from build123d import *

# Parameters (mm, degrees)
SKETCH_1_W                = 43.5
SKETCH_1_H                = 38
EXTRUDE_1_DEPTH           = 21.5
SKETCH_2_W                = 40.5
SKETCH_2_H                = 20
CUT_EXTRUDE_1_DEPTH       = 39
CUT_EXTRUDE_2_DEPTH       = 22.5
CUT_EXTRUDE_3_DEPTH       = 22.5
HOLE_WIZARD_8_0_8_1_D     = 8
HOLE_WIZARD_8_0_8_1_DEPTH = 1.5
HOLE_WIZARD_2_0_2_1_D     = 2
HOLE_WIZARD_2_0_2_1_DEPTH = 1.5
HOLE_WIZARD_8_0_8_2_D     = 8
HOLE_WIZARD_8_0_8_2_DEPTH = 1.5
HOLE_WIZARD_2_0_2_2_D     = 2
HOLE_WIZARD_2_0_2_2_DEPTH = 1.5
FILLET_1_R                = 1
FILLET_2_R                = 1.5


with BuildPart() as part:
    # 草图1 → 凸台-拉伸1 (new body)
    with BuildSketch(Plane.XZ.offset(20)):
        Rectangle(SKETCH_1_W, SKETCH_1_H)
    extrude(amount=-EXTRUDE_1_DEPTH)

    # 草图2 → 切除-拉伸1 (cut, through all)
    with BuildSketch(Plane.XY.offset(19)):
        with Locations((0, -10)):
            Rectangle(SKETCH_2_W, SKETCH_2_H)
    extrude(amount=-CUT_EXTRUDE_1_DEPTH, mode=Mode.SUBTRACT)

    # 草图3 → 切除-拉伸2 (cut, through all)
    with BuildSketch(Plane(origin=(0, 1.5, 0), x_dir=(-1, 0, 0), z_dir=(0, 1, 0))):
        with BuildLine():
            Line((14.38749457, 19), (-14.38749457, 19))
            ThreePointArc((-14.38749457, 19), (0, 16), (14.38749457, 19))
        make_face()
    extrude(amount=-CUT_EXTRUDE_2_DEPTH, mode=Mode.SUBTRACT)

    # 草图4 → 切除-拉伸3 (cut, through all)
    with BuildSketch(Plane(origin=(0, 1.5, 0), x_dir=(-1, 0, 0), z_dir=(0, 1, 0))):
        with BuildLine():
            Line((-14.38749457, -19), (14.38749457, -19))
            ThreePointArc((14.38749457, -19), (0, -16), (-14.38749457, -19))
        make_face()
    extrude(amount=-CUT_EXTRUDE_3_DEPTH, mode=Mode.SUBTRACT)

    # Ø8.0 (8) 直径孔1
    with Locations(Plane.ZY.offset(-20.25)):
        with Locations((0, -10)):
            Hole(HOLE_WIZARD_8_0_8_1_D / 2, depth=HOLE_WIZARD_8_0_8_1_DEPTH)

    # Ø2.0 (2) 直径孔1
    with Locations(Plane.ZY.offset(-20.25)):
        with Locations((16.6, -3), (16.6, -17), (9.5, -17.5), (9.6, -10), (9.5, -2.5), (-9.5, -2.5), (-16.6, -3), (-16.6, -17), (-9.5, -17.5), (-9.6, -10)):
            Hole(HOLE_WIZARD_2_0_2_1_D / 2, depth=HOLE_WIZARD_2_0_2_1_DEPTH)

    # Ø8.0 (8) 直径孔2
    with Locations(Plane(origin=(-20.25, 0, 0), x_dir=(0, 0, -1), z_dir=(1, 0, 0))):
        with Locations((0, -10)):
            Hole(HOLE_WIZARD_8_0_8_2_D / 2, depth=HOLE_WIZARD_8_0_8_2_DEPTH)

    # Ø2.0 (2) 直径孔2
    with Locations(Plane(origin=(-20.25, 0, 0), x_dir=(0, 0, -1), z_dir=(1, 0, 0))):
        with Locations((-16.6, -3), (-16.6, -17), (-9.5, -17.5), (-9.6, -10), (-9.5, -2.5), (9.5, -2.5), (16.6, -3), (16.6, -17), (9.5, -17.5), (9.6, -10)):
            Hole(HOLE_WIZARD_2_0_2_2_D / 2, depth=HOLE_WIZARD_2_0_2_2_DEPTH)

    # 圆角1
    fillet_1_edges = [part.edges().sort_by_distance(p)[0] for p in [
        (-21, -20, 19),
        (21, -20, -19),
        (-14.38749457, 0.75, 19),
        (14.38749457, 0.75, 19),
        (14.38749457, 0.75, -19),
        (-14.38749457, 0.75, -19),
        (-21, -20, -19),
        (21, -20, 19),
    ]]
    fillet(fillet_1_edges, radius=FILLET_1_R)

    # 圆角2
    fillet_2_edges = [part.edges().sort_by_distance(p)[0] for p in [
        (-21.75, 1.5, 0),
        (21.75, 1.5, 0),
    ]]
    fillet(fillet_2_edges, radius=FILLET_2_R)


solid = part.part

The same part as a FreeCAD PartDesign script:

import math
import FreeCAD as App
import Part
import Sketcher
from FreeCAD import Vector
Q = App.Units.Quantity


def edges_at(feature, points):
    """Names of the edges that pass closest to the given points."""
    edges = feature.Shape.Edges
    near = lambda p: min(range(len(edges)), key=lambda i: edges[i].distToShape(Part.Vertex(*p))[0])
    return sorted({f"Edge{near(p) + 1}" for p in points})


def add_polygon(sketch, points):
    """Adds a closed chain of lines whose ends are joined by coincident constraints."""
    first, n = sketch.GeometryCount, len(points)
    for a, b in zip(points, points[1:] + points[:1]):
        sketch.addGeometry(Part.LineSegment(App.Vector(*a, 0), App.Vector(*b, 0)), False)
    for i in range(n):
        sketch.addConstraint(Sketcher.Constraint("Coincident", first + i, 2, first + (i + 1) % n, 1))

doc = App.newDocument("Part")
params = doc.addObject("Spreadsheet::Sheet", "Params")
for row, (alias, value) in enumerate([
    ("sketch1_height", "38 mm"),
    ("sketch1_width", "43.5 mm"),
    ("pad1_length", "21.5 mm"),
    ("sketch2_height", "20 mm"),
    ("sketch2_width", "40.5 mm"),
    ("sketch3_radius", "36 mm"),
    ("sketch4_radius", "36 mm"),
    ("sketch5_diameter", "8 mm"),
    ("hole_diameter", "8 mm"),
    ("hole_depth", "1.5 mm"),
    ("sketch6_diameter", "2 mm"),
    ("hole2_diameter", "2 mm"),
    ("hole2_depth", "1.5 mm"),
    ("sketch7_diameter", "8 mm"),
    ("hole3_diameter", "8 mm"),
    ("hole3_depth", "1.5 mm"),
    ("sketch8_diameter", "2 mm"),
    ("hole4_diameter", "2 mm"),
    ("hole4_depth", "1.5 mm"),
    ("fillet_radius", "1 mm"),
    ("fillet2_radius", "1.5 mm"),
], start=1):
    params.set(f"A{row}", alias)
    params.set(f"B{row}", "=" + value)
    params.setAlias(f"B{row}", alias)

body = doc.addObject("PartDesign::Body", "Body")

sketch1 = body.newObject("Sketcher::SketchObject", "Sketch")
sketch1.AttachmentSupport = (doc.getObject("XZ_Plane"), [""])
sketch1.MapMode = "FlatFace"
sketch1.AttachmentOffset = App.Placement(Vector(0, 0, 20), App.Rotation())
add_polygon(sketch1, [(-21.75, 19), (-21.75, -19), (21.75, -19), (21.75, 19)])
sketch1.addConstraint(Sketcher.Constraint("Vertical", 0))
sketch1.addConstraint(Sketcher.Constraint("Horizontal", 1))
sketch1.addConstraint(Sketcher.Constraint("Vertical", 2))
sketch1.addConstraint(Sketcher.Constraint("Horizontal", 3))
sketch1.addConstraint(Sketcher.Constraint("Symmetric", 0, 2, 2, 2, -1, 1))
sketch1.addConstraint(Sketcher.Constraint("DistanceY", 0, 2, 0, 1, Q("38 mm")))
sketch1.addConstraint(Sketcher.Constraint("DistanceX", 1, 1, 1, 2, Q("43.5 mm")))
sketch1.setExpression("Constraints[9]", "Params.sketch1_height")
sketch1.setExpression("Constraints[10]", "Params.sketch1_width")
pad1 = body.newObject("PartDesign::Pad", "Pad")
pad1.Profile = sketch1
pad1.setExpression("Length", "Params.pad1_length")
pad1.Reversed = True

sketch2 = body.newObject("Sketcher::SketchObject", "Sketch001")
sketch2.AttachmentSupport = (doc.getObject("XY_Plane"), [""])
sketch2.MapMode = "FlatFace"
sketch2.AttachmentOffset = App.Placement(Vector(0, 0, 19), App.Rotation())
add_polygon(sketch2, [(-20.25, 0), (-20.25, -20), (20.25, -20), (20.25, 0)])
sketch2.addConstraint(Sketcher.Constraint("Vertical", 0))
sketch2.addConstraint(Sketcher.Constraint("Horizontal", 1))
sketch2.addConstraint(Sketcher.Constraint("Vertical", 2))
sketch2.addConstraint(Sketcher.Constraint("Horizontal", 3))
sketch2.addConstraint(Sketcher.Constraint("Symmetric", 2, 2, 3, 2, -1, 1))
sketch2.addConstraint(Sketcher.Constraint("DistanceY", 0, 2, 0, 1, Q("20 mm")))
sketch2.addConstraint(Sketcher.Constraint("DistanceX", 1, 1, 1, 2, Q("40.5 mm")))
sketch2.setExpression("Constraints[9]", "Params.sketch2_height")
sketch2.setExpression("Constraints[10]", "Params.sketch2_width")
pocket1 = body.newObject("PartDesign::Pocket", "Pocket")
pocket1.Profile = sketch2
pocket1.Type = "ThroughAll"

sketch3 = body.newObject("Sketcher::SketchObject", "Sketch002")
sketch3.AttachmentSupport = (doc.getObject("XZ_Plane"), [""])
sketch3.MapMode = "FlatFace"
sketch3.AttachmentOffset = App.Placement(Vector(0, 0, -1.5), App.Rotation())
sketch3.addGeometry(Part.LineSegment(Vector(-14.387495, 19, 0), Vector(14.387495, 19, 0)), False)
sketch3.addGeometry(Part.ArcOfCircle(Part.Circle(Vector(0, 52, 0), Vector(0, 0, 1), 36), math.radians(-113.556464), math.radians(-66.443536)), False)
sketch3.addConstraint(Sketcher.Constraint("Coincident", 0, 1, 1, 1))
sketch3.addConstraint(Sketcher.Constraint("Coincident", 1, 2, 0, 2))
sketch3.addConstraint(Sketcher.Constraint("Horizontal", 0))
sketch3.addConstraint(Sketcher.Constraint("PointOnObject", 1, 3, -2))
sketch3.addConstraint(Sketcher.Constraint("Radius", 1, Q("36 mm")))
sketch3.addConstraint(Sketcher.Constraint("DistanceY", -1, 1, 1, 3, Q("52 mm")))
sketch3.addConstraint(Sketcher.Constraint("DistanceY", -1, 1, 0, 1, Q("19 mm")))
sketch3.setExpression("Constraints[4]", "Params.sketch3_radius")
pocket2 = body.newObject("PartDesign::Pocket", "Pocket001")
pocket2.Profile = sketch3
pocket2.Type = "ThroughAll"
pocket2.Reversed = True

sketch4 = body.newObject("Sketcher::SketchObject", "Sketch003")
sketch4.AttachmentSupport = (doc.getObject("XZ_Plane"), [""])
sketch4.MapMode = "FlatFace"
sketch4.AttachmentOffset = App.Placement(Vector(0, 0, -1.5), App.Rotation())
sketch4.addGeometry(Part.LineSegment(Vector(14.387495, -19, 0), Vector(-14.387495, -19, 0)), False)
sketch4.addGeometry(Part.ArcOfCircle(Part.Circle(Vector(0, -52, 0), Vector(0, 0, 1), 36), math.radians(66.443536), math.radians(113.556464)), False)
sketch4.addConstraint(Sketcher.Constraint("Coincident", 0, 1, 1, 1))
sketch4.addConstraint(Sketcher.Constraint("Coincident", 1, 2, 0, 2))
sketch4.addConstraint(Sketcher.Constraint("Horizontal", 0))
sketch4.addConstraint(Sketcher.Constraint("PointOnObject", 1, 3, -2))
sketch4.addConstraint(Sketcher.Constraint("Radius", 1, Q("36 mm")))
sketch4.addConstraint(Sketcher.Constraint("DistanceY", 1, 3, -1, 1, Q("52 mm")))
sketch4.addConstraint(Sketcher.Constraint("DistanceY", 0, 1, -1, 1, Q("19 mm")))
sketch4.setExpression("Constraints[4]", "Params.sketch4_radius")
pocket3 = body.newObject("PartDesign::Pocket", "Pocket002")
pocket3.Profile = sketch4
pocket3.Type = "ThroughAll"
pocket3.Reversed = True

sketch5 = body.newObject("Sketcher::SketchObject", "Sketch004")
sketch5.AttachmentSupport = (doc.getObject("YZ_Plane"), [""])
sketch5.MapMode = "FlatFace"
sketch5.AttachmentOffset = App.Placement(Vector(0, 0, 20.25), App.Rotation())
sketch5.addGeometry(Part.Circle(Vector(-10, 0, 0), Vector(0, 0, 1), 4), False)
sketch5.addConstraint(Sketcher.Constraint("PointOnObject", 0, 3, -1))
sketch5.addConstraint(Sketcher.Constraint("Diameter", 0, Q("8 mm")))
sketch5.addConstraint(Sketcher.Constraint("DistanceX", 0, 3, -1, 1, Q("10 mm")))
sketch5.setExpression("Constraints[1]", "Params.sketch5_diameter")
doc.recompute()
hole = body.newObject("PartDesign::Hole", "Hole")
hole.Profile = sketch5
hole.ThreadType = "None"
hole.setExpression("Diameter", "Params.hole_diameter")
hole.DepthType = "Dimension"
hole.setExpression("Depth", "Params.hole_depth")
hole.DrillPoint = "Flat"
hole.Reversed = True

sketch6 = body.newObject("Sketcher::SketchObject", "Sketch005")
sketch6.AttachmentSupport = (doc.getObject("YZ_Plane"), [""])
sketch6.MapMode = "FlatFace"
sketch6.AttachmentOffset = App.Placement(Vector(0, 0, 20.25), App.Rotation())
sketch6.addGeometry(Part.Circle(Vector(-3, 16.6, 0), Vector(0, 0, 1), 1), False)
sketch6.addGeometry(Part.Circle(Vector(-17, 16.6, 0), Vector(0, 0, 1), 1), False)
sketch6.addGeometry(Part.Circle(Vector(-17.5, 9.5, 0), Vector(0, 0, 1), 1), False)
sketch6.addGeometry(Part.Circle(Vector(-10, 9.6, 0), Vector(0, 0, 1), 1), False)
sketch6.addGeometry(Part.Circle(Vector(-2.5, 9.5, 0), Vector(0, 0, 1), 1), False)
sketch6.addGeometry(Part.Circle(Vector(-2.5, -9.5, 0), Vector(0, 0, 1), 1), False)
sketch6.addGeometry(Part.Circle(Vector(-3, -16.6, 0), Vector(0, 0, 1), 1), False)
sketch6.addGeometry(Part.Circle(Vector(-17, -16.6, 0), Vector(0, 0, 1), 1), False)
sketch6.addGeometry(Part.Circle(Vector(-17.5, -9.5, 0), Vector(0, 0, 1), 1), False)
sketch6.addGeometry(Part.Circle(Vector(-10, -9.6, 0), Vector(0, 0, 1), 1), False)
sketch6.addConstraint(Sketcher.Constraint("Equal", 0, 1))
sketch6.addConstraint(Sketcher.Constraint("Equal", 1, 2))
sketch6.addConstraint(Sketcher.Constraint("Equal", 2, 3))
sketch6.addConstraint(Sketcher.Constraint("Equal", 3, 4))
sketch6.addConstraint(Sketcher.Constraint("Equal", 4, 5))
sketch6.addConstraint(Sketcher.Constraint("Equal", 5, 6))
sketch6.addConstraint(Sketcher.Constraint("Equal", 6, 7))
sketch6.addConstraint(Sketcher.Constraint("Equal", 7, 8))
sketch6.addConstraint(Sketcher.Constraint("Equal", 8, 9))
sketch6.addConstraint(Sketcher.Constraint("Symmetric", 4, 3, 5, 3, -1))
sketch6.addConstraint(Sketcher.Constraint("Symmetric", 0, 3, 6, 3, -1))
sketch6.addConstraint(Sketcher.Constraint("Symmetric", 1, 3, 7, 3, -1))
sketch6.addConstraint(Sketcher.Constraint("Symmetric", 2, 3, 8, 3, -1))
sketch6.addConstraint(Sketcher.Constraint("Symmetric", 3, 3, 9, 3, -1))
sketch6.addConstraint(Sketcher.Constraint("Horizontal", 0, 3, 1, 3))
sketch6.addConstraint(Sketcher.Constraint("Horizontal", 2, 3, 4, 3))
sketch6.addConstraint(Sketcher.Constraint("Diameter", 0, Q("2 mm")))
sketch6.addConstraint(Sketcher.Constraint("DistanceX", 0, 3, -1, 1, Q("3 mm")))
sketch6.addConstraint(Sketcher.Constraint("DistanceX", 1, 3, -1, 1, Q("17 mm")))
sketch6.addConstraint(Sketcher.Constraint("DistanceX", 3, 3, -1, 1, Q("10 mm")))
sketch6.addConstraint(Sketcher.Constraint("DistanceY", 3, 3, 0, 3, Q("7 mm")))
sketch6.addConstraint(Sketcher.Constraint("DistanceX", 2, 3, 4, 3, Q("15 mm")))
sketch6.addConstraint(Sketcher.Constraint("DistanceY", 5, 3, 4, 3, Q("19 mm")))
sketch6.addConstraint(Sketcher.Constraint("DistanceY", -1, 1, 0, 3, Q("16.6 mm")))
sketch6.addConstraint(Sketcher.Constraint("DistanceX", 2, 3, -1, 1, Q("17.5 mm")))
sketch6.setExpression("Constraints[16]", "Params.sketch6_diameter")
doc.recompute()
hole2 = body.newObject("PartDesign::Hole", "Hole001")
hole2.Profile = sketch6
hole2.ThreadType = "None"
hole2.setExpression("Diameter", "Params.hole2_diameter")
hole2.DepthType = "Dimension"
hole2.setExpression("Depth", "Params.hole2_depth")
hole2.DrillPoint = "Flat"
hole2.Reversed = True

sketch7 = body.newObject("Sketcher::SketchObject", "Sketch006")
sketch7.AttachmentSupport = (doc.getObject("YZ_Plane"), [""])
sketch7.MapMode = "FlatFace"
sketch7.AttachmentOffset = App.Placement(Vector(0, 0, -20.25), App.Rotation())
sketch7.addGeometry(Part.Circle(Vector(-10, 0, 0), Vector(0, 0, 1), 4), False)
sketch7.addConstraint(Sketcher.Constraint("PointOnObject", 0, 3, -1))
sketch7.addConstraint(Sketcher.Constraint("Diameter", 0, Q("8 mm")))
sketch7.addConstraint(Sketcher.Constraint("DistanceX", 0, 3, -1, 1, Q("10 mm")))
sketch7.setExpression("Constraints[1]", "Params.sketch7_diameter")
doc.recompute()
hole3 = body.newObject("PartDesign::Hole", "Hole002")
hole3.Profile = sketch7
hole3.ThreadType = "None"
hole3.setExpression("Diameter", "Params.hole3_diameter")
hole3.DepthType = "Dimension"
hole3.setExpression("Depth", "Params.hole3_depth")
hole3.DrillPoint = "Flat"

sketch8 = body.newObject("Sketcher::SketchObject", "Sketch007")
sketch8.AttachmentSupport = (doc.getObject("YZ_Plane"), [""])
sketch8.MapMode = "FlatFace"
sketch8.AttachmentOffset = App.Placement(Vector(0, 0, -20.25), App.Rotation())
sketch8.addGeometry(Part.Circle(Vector(-3, 16.6, 0), Vector(0, 0, 1), 1), False)
sketch8.addGeometry(Part.Circle(Vector(-17, 16.6, 0), Vector(0, 0, 1), 1), False)
sketch8.addGeometry(Part.Circle(Vector(-17.5, 9.5, 0), Vector(0, 0, 1), 1), False)
sketch8.addGeometry(Part.Circle(Vector(-10, 9.6, 0), Vector(0, 0, 1), 1), False)
sketch8.addGeometry(Part.Circle(Vector(-2.5, 9.5, 0), Vector(0, 0, 1), 1), False)
sketch8.addGeometry(Part.Circle(Vector(-2.5, -9.5, 0), Vector(0, 0, 1), 1), False)
sketch8.addGeometry(Part.Circle(Vector(-3, -16.6, 0), Vector(0, 0, 1), 1), False)
sketch8.addGeometry(Part.Circle(Vector(-17, -16.6, 0), Vector(0, 0, 1), 1), False)
sketch8.addGeometry(Part.Circle(Vector(-17.5, -9.5, 0), Vector(0, 0, 1), 1), False)
sketch8.addGeometry(Part.Circle(Vector(-10, -9.6, 0), Vector(0, 0, 1), 1), False)
sketch8.addConstraint(Sketcher.Constraint("Equal", 0, 1))
sketch8.addConstraint(Sketcher.Constraint("Equal", 1, 2))
sketch8.addConstraint(Sketcher.Constraint("Equal", 2, 3))
sketch8.addConstraint(Sketcher.Constraint("Equal", 3, 4))
sketch8.addConstraint(Sketcher.Constraint("Equal", 4, 5))
sketch8.addConstraint(Sketcher.Constraint("Equal", 5, 6))
sketch8.addConstraint(Sketcher.Constraint("Equal", 6, 7))
sketch8.addConstraint(Sketcher.Constraint("Equal", 7, 8))
sketch8.addConstraint(Sketcher.Constraint("Equal", 8, 9))
sketch8.addConstraint(Sketcher.Constraint("Symmetric", 4, 3, 5, 3, -1))
sketch8.addConstraint(Sketcher.Constraint("Symmetric", 0, 3, 6, 3, -1))
sketch8.addConstraint(Sketcher.Constraint("Symmetric", 1, 3, 7, 3, -1))
sketch8.addConstraint(Sketcher.Constraint("Symmetric", 2, 3, 8, 3, -1))
sketch8.addConstraint(Sketcher.Constraint("Symmetric", 3, 3, 9, 3, -1))
sketch8.addConstraint(Sketcher.Constraint("Horizontal", 0, 3, 1, 3))
sketch8.addConstraint(Sketcher.Constraint("Horizontal", 2, 3, 4, 3))
sketch8.addConstraint(Sketcher.Constraint("Diameter", 0, Q("2 mm")))
sketch8.addConstraint(Sketcher.Constraint("DistanceX", 0, 3, -1, 1, Q("3 mm")))
sketch8.addConstraint(Sketcher.Constraint("DistanceX", 1, 3, -1, 1, Q("17 mm")))
sketch8.addConstraint(Sketcher.Constraint("DistanceX", 3, 3, -1, 1, Q("10 mm")))
sketch8.addConstraint(Sketcher.Constraint("DistanceY", 3, 3, 0, 3, Q("7 mm")))
sketch8.addConstraint(Sketcher.Constraint("DistanceX", 2, 3, 4, 3, Q("15 mm")))
sketch8.addConstraint(Sketcher.Constraint("DistanceY", 5, 3, 4, 3, Q("19 mm")))
sketch8.addConstraint(Sketcher.Constraint("DistanceY", -1, 1, 0, 3, Q("16.6 mm")))
sketch8.addConstraint(Sketcher.Constraint("DistanceX", 2, 3, -1, 1, Q("17.5 mm")))
sketch8.setExpression("Constraints[16]", "Params.sketch8_diameter")
doc.recompute()
hole4 = body.newObject("PartDesign::Hole", "Hole003")
hole4.Profile = sketch8
hole4.ThreadType = "None"
hole4.setExpression("Diameter", "Params.hole4_diameter")
hole4.DepthType = "Dimension"
hole4.setExpression("Depth", "Params.hole4_depth")
hole4.DrillPoint = "Flat"
doc.recompute()

fillet = body.newObject("PartDesign::Fillet", "Fillet")
fillet.Base = (hole4, edges_at(hole4, [
    (-21, -20, 19),
    (21, -20, -19),
    (-14.387, 0.75, 19),
    (14.387, 0.75, 19),
    (14.387, 0.75, -19),
    (-14.387, 0.75, -19),
    (-21, -20, -19),
    (21, -20, 19),
]))
fillet.setExpression("Radius", "Params.fillet_radius")
doc.recompute()

fillet2 = body.newObject("PartDesign::Fillet", "Fillet001")
fillet2.Base = (fillet, edges_at(fillet, [(-21.75, 1.5, 0), (21.75, 1.5, 0)]))
fillet2.setExpression("Radius", "Params.fillet2_radius")

doc.recompute()
